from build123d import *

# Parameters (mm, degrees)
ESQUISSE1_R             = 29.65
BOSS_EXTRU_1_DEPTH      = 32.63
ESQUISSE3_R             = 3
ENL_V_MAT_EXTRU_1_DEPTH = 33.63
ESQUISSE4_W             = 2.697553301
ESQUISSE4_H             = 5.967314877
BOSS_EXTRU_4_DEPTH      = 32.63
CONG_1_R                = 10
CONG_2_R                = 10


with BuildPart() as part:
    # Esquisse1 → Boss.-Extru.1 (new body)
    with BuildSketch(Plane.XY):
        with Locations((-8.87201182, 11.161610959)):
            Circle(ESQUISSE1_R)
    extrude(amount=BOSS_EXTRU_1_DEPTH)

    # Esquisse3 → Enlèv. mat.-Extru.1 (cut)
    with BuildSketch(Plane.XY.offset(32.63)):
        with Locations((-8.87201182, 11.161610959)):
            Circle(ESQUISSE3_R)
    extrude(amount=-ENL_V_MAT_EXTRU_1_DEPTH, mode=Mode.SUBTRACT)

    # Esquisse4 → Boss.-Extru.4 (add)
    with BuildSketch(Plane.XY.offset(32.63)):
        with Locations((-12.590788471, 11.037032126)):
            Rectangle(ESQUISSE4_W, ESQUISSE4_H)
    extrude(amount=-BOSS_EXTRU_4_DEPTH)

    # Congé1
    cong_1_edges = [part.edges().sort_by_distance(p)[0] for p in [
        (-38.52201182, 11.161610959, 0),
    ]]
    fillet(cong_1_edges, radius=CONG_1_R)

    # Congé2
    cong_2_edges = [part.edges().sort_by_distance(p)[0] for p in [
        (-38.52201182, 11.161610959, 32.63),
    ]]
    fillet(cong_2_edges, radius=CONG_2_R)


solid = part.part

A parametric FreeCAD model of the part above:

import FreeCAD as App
import Part
import Sketcher
from FreeCAD import Vector


def edges_at(feature, points):
    """Names of the edges that pass closest to the given points."""
    edges = feature.Shape.Edges
    near = lambda p: min(range(len(edges)), key=lambda i: edges[i].distToShape(Part.Vertex(*p))[0])
    return sorted({f"Edge{near(p) + 1}" for p in points})


def add_polygon(sketch, points):
    """Adds a closed chain of lines whose ends are joined by coincident constraints."""
    first, n = sketch.GeometryCount, len(points)
    for a, b in zip(points, points[1:] + points[:1]):
        sketch.addGeometry(Part.LineSegment(App.Vector(*a, 0), App.Vector(*b, 0)), False)
    for i in range(n):
        sketch.addConstraint(Sketcher.Constraint("Coincident", first + i, 2, first + (i + 1) % n, 1))

doc = App.newDocument("Part")
body = doc.addObject("PartDesign::Body", "Body")

# Sketch on XY plane
sketch1 = doc.addObject("Sketcher::SketchObject", "Sketch")
body.addObject(sketch1)
sketch1.AttachmentSupport = (doc.XY_Plane, [""])
sketch1.MapMode = "FlatFace"
sketch1.addGeometry(Part.Circle(Vector(-9, 11, 0), Vector(0, 0, 1), 30), False)
sketch1.addConstraint([
    Sketcher.Constraint("Diameter", 0, 59.3),
    Sketcher.Constraint("DistanceX", 0, 3, -1, 1, 8.872012),
    Sketcher.Constraint("DistanceY", -1, 1, 0, 3, 11.161611),
])
pad1 = doc.addObject("PartDesign::Pad", "Pad")
body.addObject(pad1)
pad1.Profile = sketch1
pad1.Length = 32.63

# Sketch on XY plane
sketch2 = doc.addObject("Sketcher::SketchObject", "Sketch001")
body.addObject(sketch2)
sketch2.AttachmentSupport = (doc.XY_Plane, [""])
sketch2.MapMode = "FlatFace"
sketch2.AttachmentOffset = App.Placement(Vector(0, 0, 32.63), App.Rotation())
sketch2.addGeometry(Part.Circle(Vector(-8.9, 11.2, 0), Vector(0, 0, 1), 3), False)
sketch2.addConstraint([
    Sketcher.Constraint("Diameter", 0, 6.0),
    Sketcher.Constraint("DistanceX", 0, 3, -1, 1, 8.872012),
    Sketcher.Constraint("DistanceY", -1, 1, 0, 3, 11.161611),
])
pocket1 = doc.addObject("PartDesign::Pocket", "Pocket")
body.addObject(pocket1)
pocket1.Profile = sketch2
pocket1.Length = 33.63

# Sketch on XY plane
sketch3 = doc.addObject("Sketcher::SketchObject", "Sketch002")
body.addObject(sketch3)
sketch3.AttachmentSupport = (doc.XY_Plane, [""])
sketch3.MapMode = "FlatFace"
sketch3.AttachmentOffset = App.Placement(Vector(0, 0, 32.63), App.Rotation())
add_polygon(sketch3, [(-13.9, 14), (-13.9, 8.1), (-11.2, 8.1), (-11.2, 14)])  # lines 0-3
sketch3.addConstraint([
    Sketcher.Constraint("Vertical", 0),
    Sketcher.Constraint("Horizontal", 1),
    Sketcher.Constraint("Vertical", 2),
    Sketcher.Constraint("Horizontal", 3),
    Sketcher.Constraint("DistanceX", 1, 1, 1, 2, 2.697553),
    Sketcher.Constraint("DistanceY", 0, 2, 0, 1, 5.967315),
    Sketcher.Constraint("DistanceX", 1, 2, -1, 1, 11.242012),
    Sketcher.Constraint("DistanceY", -1, 1, 2, 2, 14.02069),
])
pad2 = doc.addObject("PartDesign::Pad", "Pad001")
body.addObject(pad2)
pad2.Profile = sketch3
pad2.Length = 32.63
pad2.Reversed = True
doc.recompute()

fillet = doc.addObject("PartDesign::Fillet", "Fillet")
body.addObject(fillet)
fillet.Base = (pad2, edges_at(pad2, [(-38.522, 11.162, 0)]))
fillet.Radius = 10
doc.recompute()

fillet2 = doc.addObject("PartDesign::Fillet", "Fillet001")
body.addObject(fillet2)
fillet2.Base = (fillet, edges_at(fillet, [(-38.522, 11.162, 32.63)]))
fillet2.Radius = 10

doc.recompute()
